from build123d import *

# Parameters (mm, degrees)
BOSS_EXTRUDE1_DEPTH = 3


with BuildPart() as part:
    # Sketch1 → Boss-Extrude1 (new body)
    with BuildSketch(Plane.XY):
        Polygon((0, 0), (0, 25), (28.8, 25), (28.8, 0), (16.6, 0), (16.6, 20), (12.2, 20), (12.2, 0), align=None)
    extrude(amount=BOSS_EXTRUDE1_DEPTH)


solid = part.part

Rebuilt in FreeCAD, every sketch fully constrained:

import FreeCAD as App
import Part
import Sketcher
from FreeCAD import Vector
Q = App.Units.Quantity

doc = App.newDocument("Part")
body = doc.addObject("PartDesign::Body", "Body")

# Sketch on XY plane
sketch1 = body.newObject("Sketcher::SketchObject", "Sketch")
sketch1.AttachmentSupport = (doc.getObject("XY_Plane"), [""])
sketch1.MapMode = "FlatFace"
sketch1.addGeometry([
    Part.LineSegment(Vector(0, 25, 0), Vector(0, 0, 0)),  # 0
    Part.LineSegment(Vector(0, 0, 0), Vector(12.2, 0, 0)),  # 1
    Part.LineSegment(Vector(12.2, 0, 0), Vector(12.2, 20, 0)),  # 2
    Part.LineSegment(Vector(12.2, 20, 0), Vector(16.6, 20, 0)),  # 3
    Part.LineSegment(Vector(16.6, 20, 0), Vector(16.6, 0, 0)),  # 4
    Part.LineSegment(Vector(16.6, 0, 0), Vector(28.8, 0, 0)),  # 5
    Part.LineSegment(Vector(28.8, 0, 0), Vector(28.8, 25, 0)),  # 6
    Part.LineSegment(Vector(28.8, 25, 0), Vector(0, 25, 0)),  # 7
], False)
sketch1.addConstraint([
    Sketcher.Constraint("Coincident", 0, 2, 1, 1),
    Sketcher.Constraint("Coincident", 1, 2, 2, 1),
    Sketcher.Constraint("Coincident", 2, 2, 3, 1),
    Sketcher.Constraint("Coincident", 3, 2, 4, 1),
    Sketcher.Constraint("Coincident", 4, 2, 5, 1),
    Sketcher.Constraint("Coincident", 5, 2, 6, 1),
    Sketcher.Constraint("Coincident", 6, 2, 7, 1),
    Sketcher.Constraint("Coincident", 7, 2, 0, 1),
    Sketcher.Constraint("Vertical", 0),
    Sketcher.Constraint("Horizontal", 1),
    Sketcher.Constraint("Vertical", 2),
    Sketcher.Constraint("Horizontal", 3),
    Sketcher.Constraint("Vertical", 4),
    Sketcher.Constraint("Horizontal", 5),
    Sketcher.Constraint("Vertical", 6),
    Sketcher.Constraint("Horizontal", 7),
    Sketcher.Constraint("Coincident", 0, 2, -1, 1),
    Sketcher.Constraint("PointOnObject", 4, 2, -1),
    Sketcher.Constraint("Equal", 1, 5),
    Sketcher.Constraint("DistanceY", 0, 2, 0, 1, Q("25 mm")),
    Sketcher.Constraint("DistanceY", 2, 1, 2, 2, Q("20 mm")),
    Sketcher.Constraint("DistanceX", 1, 1, 1, 2, Q("12.2 mm")),
    Sketcher.Constraint("DistanceX", 3, 1, 3, 2, Q("4.4 mm")),
])
pad1 = body.newObject("PartDesign::Pad", "Pad")
pad1.Profile = sketch1
pad1.Length = 3

doc.recompute()
